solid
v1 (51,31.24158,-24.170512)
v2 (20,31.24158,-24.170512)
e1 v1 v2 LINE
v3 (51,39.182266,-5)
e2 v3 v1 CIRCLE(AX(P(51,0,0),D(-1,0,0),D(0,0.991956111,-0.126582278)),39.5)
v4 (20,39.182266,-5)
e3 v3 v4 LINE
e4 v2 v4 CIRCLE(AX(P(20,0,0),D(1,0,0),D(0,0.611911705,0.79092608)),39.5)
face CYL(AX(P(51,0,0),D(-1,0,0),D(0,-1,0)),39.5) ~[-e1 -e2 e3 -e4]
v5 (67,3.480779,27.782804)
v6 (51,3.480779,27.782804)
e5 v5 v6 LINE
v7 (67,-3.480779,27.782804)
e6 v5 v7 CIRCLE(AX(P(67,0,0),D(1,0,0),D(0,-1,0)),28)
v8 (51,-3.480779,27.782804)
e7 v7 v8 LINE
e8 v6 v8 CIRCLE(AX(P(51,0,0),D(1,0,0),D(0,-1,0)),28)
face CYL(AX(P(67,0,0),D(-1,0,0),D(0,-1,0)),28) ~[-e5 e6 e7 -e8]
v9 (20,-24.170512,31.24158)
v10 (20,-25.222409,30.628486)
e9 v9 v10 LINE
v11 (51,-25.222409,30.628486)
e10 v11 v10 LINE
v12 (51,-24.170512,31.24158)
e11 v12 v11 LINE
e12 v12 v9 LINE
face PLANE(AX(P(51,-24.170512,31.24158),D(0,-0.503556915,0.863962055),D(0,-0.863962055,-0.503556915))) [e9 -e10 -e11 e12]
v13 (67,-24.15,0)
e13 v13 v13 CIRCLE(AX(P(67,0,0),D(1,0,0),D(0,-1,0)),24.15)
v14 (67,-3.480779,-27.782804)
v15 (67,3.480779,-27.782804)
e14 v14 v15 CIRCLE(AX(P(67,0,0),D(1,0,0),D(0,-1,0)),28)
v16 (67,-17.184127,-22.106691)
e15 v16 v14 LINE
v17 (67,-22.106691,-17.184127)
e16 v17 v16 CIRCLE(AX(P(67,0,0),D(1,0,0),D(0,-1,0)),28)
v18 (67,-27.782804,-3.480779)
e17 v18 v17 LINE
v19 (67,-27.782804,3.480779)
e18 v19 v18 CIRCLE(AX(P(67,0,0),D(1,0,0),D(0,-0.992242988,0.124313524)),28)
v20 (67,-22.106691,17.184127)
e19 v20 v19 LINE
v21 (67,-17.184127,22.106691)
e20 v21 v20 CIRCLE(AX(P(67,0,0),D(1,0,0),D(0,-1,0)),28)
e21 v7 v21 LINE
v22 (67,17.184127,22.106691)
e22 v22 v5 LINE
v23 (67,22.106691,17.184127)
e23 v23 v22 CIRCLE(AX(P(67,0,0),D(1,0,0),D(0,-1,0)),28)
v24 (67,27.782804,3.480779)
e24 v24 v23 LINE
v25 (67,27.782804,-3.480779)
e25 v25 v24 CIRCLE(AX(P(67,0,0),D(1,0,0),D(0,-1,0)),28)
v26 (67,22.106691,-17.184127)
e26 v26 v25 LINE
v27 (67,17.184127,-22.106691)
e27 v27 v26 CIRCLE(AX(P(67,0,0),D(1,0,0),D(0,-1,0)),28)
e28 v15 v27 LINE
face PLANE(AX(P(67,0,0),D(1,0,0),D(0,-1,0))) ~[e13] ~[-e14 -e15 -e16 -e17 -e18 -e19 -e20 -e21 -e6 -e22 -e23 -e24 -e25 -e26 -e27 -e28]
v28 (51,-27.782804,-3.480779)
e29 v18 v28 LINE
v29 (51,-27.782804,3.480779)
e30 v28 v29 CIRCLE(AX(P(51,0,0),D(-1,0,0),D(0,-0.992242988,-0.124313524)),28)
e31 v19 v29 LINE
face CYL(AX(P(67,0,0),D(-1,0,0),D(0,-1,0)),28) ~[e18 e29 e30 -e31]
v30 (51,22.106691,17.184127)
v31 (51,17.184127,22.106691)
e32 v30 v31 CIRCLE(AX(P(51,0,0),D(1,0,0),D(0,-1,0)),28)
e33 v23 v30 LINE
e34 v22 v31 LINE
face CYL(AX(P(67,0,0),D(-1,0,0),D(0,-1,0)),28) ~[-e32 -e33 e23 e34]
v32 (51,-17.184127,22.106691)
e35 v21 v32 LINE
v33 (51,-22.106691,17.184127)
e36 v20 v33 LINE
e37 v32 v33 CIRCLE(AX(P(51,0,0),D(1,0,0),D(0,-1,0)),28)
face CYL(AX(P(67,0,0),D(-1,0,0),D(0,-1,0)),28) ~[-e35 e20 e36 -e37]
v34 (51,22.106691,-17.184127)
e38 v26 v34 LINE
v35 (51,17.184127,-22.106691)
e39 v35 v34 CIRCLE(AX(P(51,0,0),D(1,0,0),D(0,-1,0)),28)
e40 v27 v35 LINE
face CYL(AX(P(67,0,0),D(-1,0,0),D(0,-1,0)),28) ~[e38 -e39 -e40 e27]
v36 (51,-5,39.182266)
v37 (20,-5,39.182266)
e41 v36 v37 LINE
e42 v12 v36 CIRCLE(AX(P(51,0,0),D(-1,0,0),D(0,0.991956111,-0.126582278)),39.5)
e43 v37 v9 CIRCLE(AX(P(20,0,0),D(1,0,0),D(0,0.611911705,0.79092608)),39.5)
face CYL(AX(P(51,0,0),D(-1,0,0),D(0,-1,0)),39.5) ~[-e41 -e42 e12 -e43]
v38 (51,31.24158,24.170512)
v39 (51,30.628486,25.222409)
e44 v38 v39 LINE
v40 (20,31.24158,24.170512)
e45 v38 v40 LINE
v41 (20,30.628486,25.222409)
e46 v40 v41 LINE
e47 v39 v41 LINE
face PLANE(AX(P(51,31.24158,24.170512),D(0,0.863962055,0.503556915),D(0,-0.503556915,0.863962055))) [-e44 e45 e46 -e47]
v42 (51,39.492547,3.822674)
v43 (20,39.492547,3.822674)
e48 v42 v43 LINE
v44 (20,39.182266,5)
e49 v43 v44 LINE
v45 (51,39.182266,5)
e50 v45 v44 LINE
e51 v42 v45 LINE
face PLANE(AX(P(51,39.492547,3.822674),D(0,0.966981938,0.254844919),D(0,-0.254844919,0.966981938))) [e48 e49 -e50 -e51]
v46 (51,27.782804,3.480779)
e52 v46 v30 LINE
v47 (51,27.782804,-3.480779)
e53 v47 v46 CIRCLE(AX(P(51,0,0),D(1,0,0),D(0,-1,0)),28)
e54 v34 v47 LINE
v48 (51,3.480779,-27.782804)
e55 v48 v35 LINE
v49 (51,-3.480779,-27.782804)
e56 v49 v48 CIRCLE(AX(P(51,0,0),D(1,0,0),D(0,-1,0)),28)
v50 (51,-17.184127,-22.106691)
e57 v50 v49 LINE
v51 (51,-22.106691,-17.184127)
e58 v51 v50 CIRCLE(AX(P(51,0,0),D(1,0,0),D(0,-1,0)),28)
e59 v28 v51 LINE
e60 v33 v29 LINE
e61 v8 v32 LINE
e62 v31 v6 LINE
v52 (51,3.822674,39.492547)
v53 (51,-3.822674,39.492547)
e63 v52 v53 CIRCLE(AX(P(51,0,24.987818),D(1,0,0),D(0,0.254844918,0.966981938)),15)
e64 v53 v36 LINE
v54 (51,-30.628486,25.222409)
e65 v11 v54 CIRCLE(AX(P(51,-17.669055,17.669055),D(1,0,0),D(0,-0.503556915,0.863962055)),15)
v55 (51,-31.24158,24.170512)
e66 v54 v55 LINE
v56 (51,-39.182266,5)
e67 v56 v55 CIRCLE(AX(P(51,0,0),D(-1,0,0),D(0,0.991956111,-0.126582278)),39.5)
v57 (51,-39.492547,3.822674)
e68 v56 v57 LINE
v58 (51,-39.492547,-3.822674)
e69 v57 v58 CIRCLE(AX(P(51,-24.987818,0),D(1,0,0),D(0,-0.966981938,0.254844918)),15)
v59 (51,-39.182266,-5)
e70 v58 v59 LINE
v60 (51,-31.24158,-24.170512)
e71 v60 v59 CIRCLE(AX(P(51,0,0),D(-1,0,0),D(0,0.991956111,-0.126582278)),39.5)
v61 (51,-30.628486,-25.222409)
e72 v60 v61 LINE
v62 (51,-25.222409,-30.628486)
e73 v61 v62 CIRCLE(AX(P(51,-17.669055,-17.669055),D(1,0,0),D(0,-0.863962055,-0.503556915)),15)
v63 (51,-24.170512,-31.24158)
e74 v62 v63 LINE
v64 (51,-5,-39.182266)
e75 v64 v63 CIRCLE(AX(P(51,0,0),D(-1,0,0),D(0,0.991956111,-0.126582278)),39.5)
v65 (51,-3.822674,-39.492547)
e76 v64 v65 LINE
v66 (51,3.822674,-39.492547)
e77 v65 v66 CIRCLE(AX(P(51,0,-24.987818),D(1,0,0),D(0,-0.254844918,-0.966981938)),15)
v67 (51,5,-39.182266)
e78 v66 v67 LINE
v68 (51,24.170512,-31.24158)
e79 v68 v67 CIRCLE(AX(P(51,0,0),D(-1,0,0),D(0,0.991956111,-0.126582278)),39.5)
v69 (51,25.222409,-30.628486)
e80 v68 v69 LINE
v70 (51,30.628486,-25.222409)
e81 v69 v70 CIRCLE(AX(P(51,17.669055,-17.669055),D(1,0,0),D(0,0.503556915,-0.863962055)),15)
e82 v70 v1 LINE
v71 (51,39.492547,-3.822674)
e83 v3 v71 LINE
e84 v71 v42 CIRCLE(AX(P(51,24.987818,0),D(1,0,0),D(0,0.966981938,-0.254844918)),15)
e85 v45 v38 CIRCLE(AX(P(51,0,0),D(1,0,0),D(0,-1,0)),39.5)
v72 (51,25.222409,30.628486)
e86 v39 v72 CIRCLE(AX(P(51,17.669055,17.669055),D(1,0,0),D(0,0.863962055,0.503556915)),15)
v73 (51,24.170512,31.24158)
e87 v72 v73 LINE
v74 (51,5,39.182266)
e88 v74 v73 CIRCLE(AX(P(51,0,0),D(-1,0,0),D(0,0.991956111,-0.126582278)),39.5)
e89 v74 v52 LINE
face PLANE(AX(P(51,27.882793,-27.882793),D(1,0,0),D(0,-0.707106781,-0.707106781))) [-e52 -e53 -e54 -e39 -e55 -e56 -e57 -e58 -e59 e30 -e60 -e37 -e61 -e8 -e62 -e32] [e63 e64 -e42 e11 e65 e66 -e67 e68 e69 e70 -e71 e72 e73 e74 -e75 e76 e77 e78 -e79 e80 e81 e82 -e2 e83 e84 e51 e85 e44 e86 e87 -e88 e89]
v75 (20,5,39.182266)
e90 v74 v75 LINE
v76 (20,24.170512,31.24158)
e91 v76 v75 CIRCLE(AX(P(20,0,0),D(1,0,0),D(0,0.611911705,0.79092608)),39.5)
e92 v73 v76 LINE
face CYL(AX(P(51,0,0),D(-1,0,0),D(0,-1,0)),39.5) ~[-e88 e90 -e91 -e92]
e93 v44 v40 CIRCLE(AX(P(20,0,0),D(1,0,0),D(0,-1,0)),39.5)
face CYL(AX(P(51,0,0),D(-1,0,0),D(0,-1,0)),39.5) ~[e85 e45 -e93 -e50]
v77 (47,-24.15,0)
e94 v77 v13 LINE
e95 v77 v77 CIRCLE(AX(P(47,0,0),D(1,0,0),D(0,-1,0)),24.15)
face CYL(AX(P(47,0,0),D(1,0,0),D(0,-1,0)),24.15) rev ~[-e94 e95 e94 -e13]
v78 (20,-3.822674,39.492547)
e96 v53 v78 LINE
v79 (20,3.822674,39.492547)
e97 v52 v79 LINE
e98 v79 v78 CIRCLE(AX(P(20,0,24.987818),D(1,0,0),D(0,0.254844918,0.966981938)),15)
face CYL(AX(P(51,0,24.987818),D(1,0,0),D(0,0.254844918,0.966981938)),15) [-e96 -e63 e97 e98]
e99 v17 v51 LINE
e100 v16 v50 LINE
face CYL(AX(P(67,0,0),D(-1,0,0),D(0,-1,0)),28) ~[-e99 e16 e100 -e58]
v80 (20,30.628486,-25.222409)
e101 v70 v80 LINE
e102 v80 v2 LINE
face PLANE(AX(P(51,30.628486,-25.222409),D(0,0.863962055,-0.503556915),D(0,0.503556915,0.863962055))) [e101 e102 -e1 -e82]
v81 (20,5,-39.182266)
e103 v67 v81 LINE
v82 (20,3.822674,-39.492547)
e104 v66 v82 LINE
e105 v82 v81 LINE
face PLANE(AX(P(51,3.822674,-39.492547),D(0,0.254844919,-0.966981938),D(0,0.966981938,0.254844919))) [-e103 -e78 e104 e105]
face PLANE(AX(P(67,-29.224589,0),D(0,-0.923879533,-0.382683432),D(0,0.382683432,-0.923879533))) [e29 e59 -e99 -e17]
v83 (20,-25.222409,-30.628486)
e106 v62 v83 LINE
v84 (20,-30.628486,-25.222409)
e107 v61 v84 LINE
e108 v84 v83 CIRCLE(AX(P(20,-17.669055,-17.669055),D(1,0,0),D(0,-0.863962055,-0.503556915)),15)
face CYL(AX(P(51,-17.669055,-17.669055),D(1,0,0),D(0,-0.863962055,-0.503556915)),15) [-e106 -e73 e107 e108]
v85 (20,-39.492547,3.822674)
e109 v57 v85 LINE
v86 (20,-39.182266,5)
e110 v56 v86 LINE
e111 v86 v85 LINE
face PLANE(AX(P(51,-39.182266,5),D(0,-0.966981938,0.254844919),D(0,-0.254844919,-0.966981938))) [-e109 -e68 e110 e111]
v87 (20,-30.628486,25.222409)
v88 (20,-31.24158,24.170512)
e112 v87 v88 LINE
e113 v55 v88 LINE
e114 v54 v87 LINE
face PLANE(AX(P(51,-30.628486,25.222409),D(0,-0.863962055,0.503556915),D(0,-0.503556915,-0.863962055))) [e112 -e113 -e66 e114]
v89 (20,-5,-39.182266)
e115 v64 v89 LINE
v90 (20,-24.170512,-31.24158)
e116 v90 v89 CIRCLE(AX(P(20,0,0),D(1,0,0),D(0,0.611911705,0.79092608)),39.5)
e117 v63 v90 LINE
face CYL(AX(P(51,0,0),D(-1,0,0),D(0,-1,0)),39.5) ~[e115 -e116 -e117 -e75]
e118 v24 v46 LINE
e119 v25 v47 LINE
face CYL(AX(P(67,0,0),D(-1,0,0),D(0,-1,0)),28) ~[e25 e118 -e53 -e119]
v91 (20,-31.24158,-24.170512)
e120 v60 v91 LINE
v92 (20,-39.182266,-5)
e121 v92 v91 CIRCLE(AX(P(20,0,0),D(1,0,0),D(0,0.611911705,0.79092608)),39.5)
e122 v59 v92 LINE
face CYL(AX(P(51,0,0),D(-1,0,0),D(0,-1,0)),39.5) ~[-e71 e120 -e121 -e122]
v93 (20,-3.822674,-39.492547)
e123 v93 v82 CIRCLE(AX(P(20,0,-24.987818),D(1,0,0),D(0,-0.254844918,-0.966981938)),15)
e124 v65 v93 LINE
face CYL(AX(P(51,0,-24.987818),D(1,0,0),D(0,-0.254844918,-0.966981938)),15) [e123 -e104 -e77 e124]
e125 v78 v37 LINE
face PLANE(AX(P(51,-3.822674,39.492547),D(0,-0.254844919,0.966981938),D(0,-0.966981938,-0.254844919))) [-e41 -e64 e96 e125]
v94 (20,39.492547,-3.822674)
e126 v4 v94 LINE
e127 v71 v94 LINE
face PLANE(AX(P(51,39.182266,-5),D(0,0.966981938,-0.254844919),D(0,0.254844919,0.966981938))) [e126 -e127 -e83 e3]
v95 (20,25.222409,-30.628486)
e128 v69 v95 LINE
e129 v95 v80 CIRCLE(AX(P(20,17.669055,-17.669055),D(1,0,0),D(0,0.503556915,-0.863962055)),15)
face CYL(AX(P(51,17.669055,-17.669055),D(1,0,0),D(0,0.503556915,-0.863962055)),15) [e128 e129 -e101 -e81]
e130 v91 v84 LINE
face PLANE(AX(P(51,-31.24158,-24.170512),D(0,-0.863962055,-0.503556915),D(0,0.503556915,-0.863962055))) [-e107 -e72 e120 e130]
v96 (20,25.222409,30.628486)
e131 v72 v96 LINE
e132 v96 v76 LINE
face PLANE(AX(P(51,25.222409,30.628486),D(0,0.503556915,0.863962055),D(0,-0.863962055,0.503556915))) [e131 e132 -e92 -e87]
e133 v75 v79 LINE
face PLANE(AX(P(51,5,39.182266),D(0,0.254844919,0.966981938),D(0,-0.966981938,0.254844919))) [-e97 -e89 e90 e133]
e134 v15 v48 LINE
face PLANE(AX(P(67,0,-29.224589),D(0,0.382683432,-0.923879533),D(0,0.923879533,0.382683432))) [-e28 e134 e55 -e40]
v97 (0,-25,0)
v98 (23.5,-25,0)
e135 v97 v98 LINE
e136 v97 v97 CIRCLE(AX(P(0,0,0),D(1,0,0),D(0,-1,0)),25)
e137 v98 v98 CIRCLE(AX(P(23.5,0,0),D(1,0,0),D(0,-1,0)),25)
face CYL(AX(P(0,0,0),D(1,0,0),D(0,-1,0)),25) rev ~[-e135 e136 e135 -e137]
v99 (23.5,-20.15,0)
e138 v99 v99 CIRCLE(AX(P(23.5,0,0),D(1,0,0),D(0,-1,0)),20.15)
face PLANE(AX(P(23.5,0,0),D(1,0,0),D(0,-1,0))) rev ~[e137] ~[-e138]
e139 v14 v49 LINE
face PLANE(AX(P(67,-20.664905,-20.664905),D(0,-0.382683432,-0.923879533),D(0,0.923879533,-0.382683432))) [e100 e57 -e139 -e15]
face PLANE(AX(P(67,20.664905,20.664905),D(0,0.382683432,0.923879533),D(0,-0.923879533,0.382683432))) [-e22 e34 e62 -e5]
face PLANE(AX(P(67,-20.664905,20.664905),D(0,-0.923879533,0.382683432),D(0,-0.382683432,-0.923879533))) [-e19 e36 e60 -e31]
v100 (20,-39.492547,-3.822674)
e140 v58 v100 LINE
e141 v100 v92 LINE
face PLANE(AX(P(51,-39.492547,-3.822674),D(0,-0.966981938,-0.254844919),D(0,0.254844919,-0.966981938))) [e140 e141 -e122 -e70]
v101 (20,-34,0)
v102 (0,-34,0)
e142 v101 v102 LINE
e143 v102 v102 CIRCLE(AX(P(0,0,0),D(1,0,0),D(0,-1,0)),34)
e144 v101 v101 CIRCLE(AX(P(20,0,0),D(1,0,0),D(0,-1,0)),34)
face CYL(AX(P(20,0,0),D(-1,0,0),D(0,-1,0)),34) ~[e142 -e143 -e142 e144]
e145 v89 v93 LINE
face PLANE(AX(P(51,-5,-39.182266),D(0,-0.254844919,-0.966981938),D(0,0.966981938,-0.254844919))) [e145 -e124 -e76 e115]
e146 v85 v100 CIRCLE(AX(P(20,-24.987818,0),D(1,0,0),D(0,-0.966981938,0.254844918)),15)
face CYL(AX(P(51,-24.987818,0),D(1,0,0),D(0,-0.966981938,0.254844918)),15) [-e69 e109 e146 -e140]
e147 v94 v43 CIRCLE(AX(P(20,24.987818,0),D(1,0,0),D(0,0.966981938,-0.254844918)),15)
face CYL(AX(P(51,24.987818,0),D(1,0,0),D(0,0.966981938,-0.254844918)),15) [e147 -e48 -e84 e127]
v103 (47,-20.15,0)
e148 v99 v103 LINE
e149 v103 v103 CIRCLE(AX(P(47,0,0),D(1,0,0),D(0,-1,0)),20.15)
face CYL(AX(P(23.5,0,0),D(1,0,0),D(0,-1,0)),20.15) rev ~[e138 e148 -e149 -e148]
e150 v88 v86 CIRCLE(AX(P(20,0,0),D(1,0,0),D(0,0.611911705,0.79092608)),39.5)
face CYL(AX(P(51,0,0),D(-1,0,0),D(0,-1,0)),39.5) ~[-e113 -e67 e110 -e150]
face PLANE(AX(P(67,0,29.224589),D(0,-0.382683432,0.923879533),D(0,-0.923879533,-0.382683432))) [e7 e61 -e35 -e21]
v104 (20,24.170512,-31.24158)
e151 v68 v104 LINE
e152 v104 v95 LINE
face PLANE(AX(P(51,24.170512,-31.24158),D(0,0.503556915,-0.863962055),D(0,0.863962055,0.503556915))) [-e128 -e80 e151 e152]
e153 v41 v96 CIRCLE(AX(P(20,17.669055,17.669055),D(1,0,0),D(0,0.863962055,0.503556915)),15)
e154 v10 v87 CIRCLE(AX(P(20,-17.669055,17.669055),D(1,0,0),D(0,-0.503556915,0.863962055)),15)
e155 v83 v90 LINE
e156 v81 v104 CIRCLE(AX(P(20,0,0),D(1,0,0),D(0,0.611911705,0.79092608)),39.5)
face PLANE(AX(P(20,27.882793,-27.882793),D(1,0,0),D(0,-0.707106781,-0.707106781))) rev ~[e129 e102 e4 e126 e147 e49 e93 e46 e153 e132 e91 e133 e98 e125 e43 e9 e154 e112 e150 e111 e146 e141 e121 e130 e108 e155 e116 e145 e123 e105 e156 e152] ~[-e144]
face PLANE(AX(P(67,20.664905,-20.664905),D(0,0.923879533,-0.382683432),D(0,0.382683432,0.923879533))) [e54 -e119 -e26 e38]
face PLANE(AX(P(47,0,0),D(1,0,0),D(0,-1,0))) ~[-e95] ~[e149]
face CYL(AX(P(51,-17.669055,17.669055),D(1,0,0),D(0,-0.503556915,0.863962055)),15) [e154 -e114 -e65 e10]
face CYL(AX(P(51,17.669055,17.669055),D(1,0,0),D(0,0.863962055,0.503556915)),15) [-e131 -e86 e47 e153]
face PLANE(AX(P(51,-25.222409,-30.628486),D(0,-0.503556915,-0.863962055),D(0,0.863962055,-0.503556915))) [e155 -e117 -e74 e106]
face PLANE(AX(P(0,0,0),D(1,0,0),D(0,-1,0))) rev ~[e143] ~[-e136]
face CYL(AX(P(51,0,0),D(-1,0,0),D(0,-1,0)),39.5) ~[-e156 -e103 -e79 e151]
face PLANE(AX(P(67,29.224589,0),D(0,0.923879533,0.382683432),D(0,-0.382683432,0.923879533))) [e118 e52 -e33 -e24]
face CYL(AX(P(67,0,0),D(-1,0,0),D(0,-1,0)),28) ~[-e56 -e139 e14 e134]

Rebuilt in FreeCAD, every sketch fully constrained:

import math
import FreeCAD as App
import Part
import Sketcher

V = App.Vector
Q = App.Units.Quantity

doc = App.newDocument("Part")
body = doc.addObject("PartDesign::Body", "Body")

# Sketch on XY plane
sketch1 = body.newObject("Sketcher::SketchObject", "Sketch")
sketch1.AttachmentSupport = (doc.getObject("XY_Plane"), [""])
sketch1.MapMode = "FlatFace"
sketch1.addGeometry([
    Part.LineSegment(V(23.5, -25, 0), V(0, -25, 0)),  # 0
    Part.LineSegment(V(0, -25, 0), V(0, -34, 0)),  # 1
    Part.LineSegment(V(0, -34, 0), V(20, -34, 0)),  # 2
    Part.LineSegment(V(20, -34, 0), V(20, -39.5, 0)),  # 3
    Part.LineSegment(V(20, -39.5, 0), V(51, -39.5, 0)),  # 4
    Part.LineSegment(V(51, -39.5, 0), V(51, -28, 0)),  # 5
    Part.LineSegment(V(51, -28, 0), V(67, -28, 0)),  # 6
    Part.LineSegment(V(67, -28, 0), V(67, -24.15, 0)),  # 7
    Part.LineSegment(V(67, -24.15, 0), V(47, -24.15, 0)),  # 8
    Part.LineSegment(V(47, -24.15, 0), V(47, -20.15, 0)),  # 9
    Part.LineSegment(V(47, -20.15, 0), V(23.5, -20.15, 0)),  # 10
    Part.LineSegment(V(23.5, -20.15, 0), V(23.5, -25, 0)),  # 11
], False)
sketch1.addConstraint([
    Sketcher.Constraint("Coincident", 0, 2, 1, 1),
    Sketcher.Constraint("Coincident", 1, 2, 2, 1),
    Sketcher.Constraint("Coincident", 2, 2, 3, 1),
    Sketcher.Constraint("Coincident", 3, 2, 4, 1),
    Sketcher.Constraint("Coincident", 4, 2, 5, 1),
    Sketcher.Constraint("Coincident", 5, 2, 6, 1),
    Sketcher.Constraint("Coincident", 6, 2, 7, 1),
    Sketcher.Constraint("Coincident", 7, 2, 8, 1),
    Sketcher.Constraint("Coincident", 8, 2, 9, 1),
    Sketcher.Constraint("Coincident", 9, 2, 10, 1),
    Sketcher.Constraint("Coincident", 10, 2, 11, 1),
    Sketcher.Constraint("Coincident", 11, 2, 0, 1),
    Sketcher.Constraint("Horizontal", 0),
    Sketcher.Constraint("Vertical", 1),
    Sketcher.Constraint("Horizontal", 2),
    Sketcher.Constraint("Vertical", 3),
    Sketcher.Constraint("Horizontal", 4),
    Sketcher.Constraint("Vertical", 5),
    Sketcher.Constraint("Horizontal", 6),
    Sketcher.Constraint("Vertical", 7),
    Sketcher.Constraint("Horizontal", 8),
    Sketcher.Constraint("Vertical", 9),
    Sketcher.Constraint("Horizontal", 10),
    Sketcher.Constraint("Vertical", 11),
    Sketcher.Constraint("PointOnObject", 0, 2, -2),
    Sketcher.Constraint("Equal", 2, 8),
    Sketcher.Constraint("Equal", 0, 10),
    Sketcher.Constraint("DistanceX", 2, 1, 2, 2, 20.0),
    Sketcher.Constraint("DistanceX", 4, 1, 4, 2, 31.0),
    Sketcher.Constraint("DistanceX", 6, 1, 6, 2, 16.0),
    Sketcher.Constraint("DistanceY", 1, 2, 1, 1, 9.0),
    Sketcher.Constraint("DistanceY", 9, 1, 9, 2, 4.0),
    Sketcher.Constraint("DistanceY", 3, 2, 3, 1, 5.5),
    Sketcher.Constraint("DistanceY", 5, 1, 5, 2, 11.5),
    Sketcher.Constraint("DistanceY", 0, 2, -1, 1, 25.0),
    Sketcher.Constraint("DistanceY", 7, 1, 7, 2, 3.85),
])
revolution = body.newObject("PartDesign::Revolution", "Revolution")
revolution.Profile = sketch1
revolution.ReferenceAxis = (sketch1, ["H_Axis"])
revolution.Angle = 360

# Sketch on YZ plane
sketch2 = body.newObject("Sketcher::SketchObject", "Sketch001")
sketch2.AttachmentSupport = (doc.getObject("YZ_Plane"), [""])
sketch2.MapMode = "FlatFace"
sketch2.AttachmentOffset = App.Placement(V(0, 0, 67), App.Rotation())
sketch2.addGeometry([
    Part.Circle(V(0, 0, 0), V(0, 0, 1), 45.883888),  # 0
    Part.LineSegment(V(20.664905, 20.664905, 0), V(29.224589, 0, 0)),  # 1
    Part.LineSegment(V(29.224589, 0, 0), V(20.664905, -20.664905, 0)),  # 2
    Part.LineSegment(V(20.664905, -20.664905, 0), V(0, -29.224589, 0)),  # 3
    Part.LineSegment(V(0, -29.224589, 0), V(-20.664905, -20.664905, 0)),  # 4
    Part.LineSegment(V(-20.664905, -20.664905, 0), V(-29.224589, 0, 0)),  # 5
    Part.LineSegment(V(-29.224589, 0, 0), V(-20.664905, 20.664905, 0)),  # 6
    Part.LineSegment(V(-20.664905, 20.664905, 0), V(0, 29.224589, 0)),  # 7
    Part.LineSegment(V(0, 29.224589, 0), V(20.664905, 20.664905, 0)),  # 8
], False)
sketch2.addConstraint([
    Sketcher.Constraint("Coincident", 1, 2, 2, 1),
    Sketcher.Constraint("Coincident", 2, 2, 3, 1),
    Sketcher.Constraint("Coincident", 3, 2, 4, 1),
    Sketcher.Constraint("Coincident", 4, 2, 5, 1),
    Sketcher.Constraint("Coincident", 5, 2, 6, 1),
    Sketcher.Constraint("Coincident", 6, 2, 7, 1),
    Sketcher.Constraint("Coincident", 7, 2, 8, 1),
    Sketcher.Constraint("Coincident", 8, 2, 1, 1),
    Sketcher.Constraint("Coincident", 0, 3, -1, 1),
    Sketcher.Constraint("Symmetric", 1, 2, 5, 2, -1, 1),
    Sketcher.Constraint("Symmetric", 2, 2, 6, 2, -1, 1),
    Sketcher.Constraint("Symmetric", 3, 2, 7, 2, -1, 1),
    Sketcher.Constraint("Symmetric", 4, 2, 8, 2, -1, 1),
    Sketcher.Constraint("Symmetric", 2, 2, 4, 2, -2),
    Sketcher.Constraint("PointOnObject", 1, 2, -1),
    Sketcher.Constraint("PointOnObject", 3, 2, -2),
    Sketcher.Constraint("Perpendicular", 1, 3),
    Sketcher.Constraint("Equal", 2, 3),
    Sketcher.Constraint("Angle", 1, Q("-67.5 deg")),
    Sketcher.Constraint("Diameter", 0, 91.767777),
    Sketcher.Constraint("DistanceX", -1, 1, 1, 2, 29.224589),
])
pocket1 = body.newObject("PartDesign::Pocket", "Pocket")
pocket1.Profile = sketch2
pocket1.Length = 16

# Sketch on YZ plane
sketch3 = body.newObject("Sketcher::SketchObject", "Sketch002")
sketch3.AttachmentSupport = (doc.getObject("YZ_Plane"), [""])
sketch3.MapMode = "FlatFace"
sketch3.AttachmentOffset = App.Placement(V(0, 0, 51), App.Rotation())
sketch3.addGeometry([
    Part.LineSegment(V(39.492547, 3.822674, 0), V(39.182266, 5, 0)),
    Part.LineSegment(V(39.182266, 5, 0), V(39.182266, -5, 0)),
    Part.LineSegment(V(39.182266, -5, 0), V(39.492547, -3.822674, 0)),
    Part.ArcOfCircle(Part.Circle(V(24.987818, 0, 0), V(0, 0, 1), 15), math.radians(-14.764396), math.radians(14.764396)),
], False)
sketch3.addConstraint([
    Sketcher.Constraint("Coincident", 0, 2, 1, 1),
    Sketcher.Constraint("Coincident", 1, 2, 2, 1),
    Sketcher.Constraint("Tangent", 2, 2, 3, 1),
    Sketcher.Constraint("Tangent", 3, 2, 0, 1),
    Sketcher.Constraint("Vertical", 1),
    Sketcher.Constraint("Symmetric", 2, 2, 3, 2, -1),
    Sketcher.Constraint("Radius", 3, 15.0),
    Sketcher.Constraint("DistanceY", 1, 2, 1, 1, 10.0),
    Sketcher.Constraint("DistanceX", 3, 3, 0, 2, 14.194449),
    Sketcher.Constraint("DistanceX", -1, 1, 3, 3, 24.987818),
])
pad1 = body.newObject("PartDesign::Pad", "Pad")
pad1.Profile = sketch3
pad1.Length = 31
pad1.Reversed = True
doc.recompute()

polarpattern = body.newObject("PartDesign::PolarPattern", "PolarPattern")
polarpattern.Originals = [pad1]
polarpattern.Axis = (doc.getObject("X_Axis"), [""])
polarpattern.Angle = 360
polarpattern.Occurrences = 8
body.Tip = polarpattern

doc.recompute()
